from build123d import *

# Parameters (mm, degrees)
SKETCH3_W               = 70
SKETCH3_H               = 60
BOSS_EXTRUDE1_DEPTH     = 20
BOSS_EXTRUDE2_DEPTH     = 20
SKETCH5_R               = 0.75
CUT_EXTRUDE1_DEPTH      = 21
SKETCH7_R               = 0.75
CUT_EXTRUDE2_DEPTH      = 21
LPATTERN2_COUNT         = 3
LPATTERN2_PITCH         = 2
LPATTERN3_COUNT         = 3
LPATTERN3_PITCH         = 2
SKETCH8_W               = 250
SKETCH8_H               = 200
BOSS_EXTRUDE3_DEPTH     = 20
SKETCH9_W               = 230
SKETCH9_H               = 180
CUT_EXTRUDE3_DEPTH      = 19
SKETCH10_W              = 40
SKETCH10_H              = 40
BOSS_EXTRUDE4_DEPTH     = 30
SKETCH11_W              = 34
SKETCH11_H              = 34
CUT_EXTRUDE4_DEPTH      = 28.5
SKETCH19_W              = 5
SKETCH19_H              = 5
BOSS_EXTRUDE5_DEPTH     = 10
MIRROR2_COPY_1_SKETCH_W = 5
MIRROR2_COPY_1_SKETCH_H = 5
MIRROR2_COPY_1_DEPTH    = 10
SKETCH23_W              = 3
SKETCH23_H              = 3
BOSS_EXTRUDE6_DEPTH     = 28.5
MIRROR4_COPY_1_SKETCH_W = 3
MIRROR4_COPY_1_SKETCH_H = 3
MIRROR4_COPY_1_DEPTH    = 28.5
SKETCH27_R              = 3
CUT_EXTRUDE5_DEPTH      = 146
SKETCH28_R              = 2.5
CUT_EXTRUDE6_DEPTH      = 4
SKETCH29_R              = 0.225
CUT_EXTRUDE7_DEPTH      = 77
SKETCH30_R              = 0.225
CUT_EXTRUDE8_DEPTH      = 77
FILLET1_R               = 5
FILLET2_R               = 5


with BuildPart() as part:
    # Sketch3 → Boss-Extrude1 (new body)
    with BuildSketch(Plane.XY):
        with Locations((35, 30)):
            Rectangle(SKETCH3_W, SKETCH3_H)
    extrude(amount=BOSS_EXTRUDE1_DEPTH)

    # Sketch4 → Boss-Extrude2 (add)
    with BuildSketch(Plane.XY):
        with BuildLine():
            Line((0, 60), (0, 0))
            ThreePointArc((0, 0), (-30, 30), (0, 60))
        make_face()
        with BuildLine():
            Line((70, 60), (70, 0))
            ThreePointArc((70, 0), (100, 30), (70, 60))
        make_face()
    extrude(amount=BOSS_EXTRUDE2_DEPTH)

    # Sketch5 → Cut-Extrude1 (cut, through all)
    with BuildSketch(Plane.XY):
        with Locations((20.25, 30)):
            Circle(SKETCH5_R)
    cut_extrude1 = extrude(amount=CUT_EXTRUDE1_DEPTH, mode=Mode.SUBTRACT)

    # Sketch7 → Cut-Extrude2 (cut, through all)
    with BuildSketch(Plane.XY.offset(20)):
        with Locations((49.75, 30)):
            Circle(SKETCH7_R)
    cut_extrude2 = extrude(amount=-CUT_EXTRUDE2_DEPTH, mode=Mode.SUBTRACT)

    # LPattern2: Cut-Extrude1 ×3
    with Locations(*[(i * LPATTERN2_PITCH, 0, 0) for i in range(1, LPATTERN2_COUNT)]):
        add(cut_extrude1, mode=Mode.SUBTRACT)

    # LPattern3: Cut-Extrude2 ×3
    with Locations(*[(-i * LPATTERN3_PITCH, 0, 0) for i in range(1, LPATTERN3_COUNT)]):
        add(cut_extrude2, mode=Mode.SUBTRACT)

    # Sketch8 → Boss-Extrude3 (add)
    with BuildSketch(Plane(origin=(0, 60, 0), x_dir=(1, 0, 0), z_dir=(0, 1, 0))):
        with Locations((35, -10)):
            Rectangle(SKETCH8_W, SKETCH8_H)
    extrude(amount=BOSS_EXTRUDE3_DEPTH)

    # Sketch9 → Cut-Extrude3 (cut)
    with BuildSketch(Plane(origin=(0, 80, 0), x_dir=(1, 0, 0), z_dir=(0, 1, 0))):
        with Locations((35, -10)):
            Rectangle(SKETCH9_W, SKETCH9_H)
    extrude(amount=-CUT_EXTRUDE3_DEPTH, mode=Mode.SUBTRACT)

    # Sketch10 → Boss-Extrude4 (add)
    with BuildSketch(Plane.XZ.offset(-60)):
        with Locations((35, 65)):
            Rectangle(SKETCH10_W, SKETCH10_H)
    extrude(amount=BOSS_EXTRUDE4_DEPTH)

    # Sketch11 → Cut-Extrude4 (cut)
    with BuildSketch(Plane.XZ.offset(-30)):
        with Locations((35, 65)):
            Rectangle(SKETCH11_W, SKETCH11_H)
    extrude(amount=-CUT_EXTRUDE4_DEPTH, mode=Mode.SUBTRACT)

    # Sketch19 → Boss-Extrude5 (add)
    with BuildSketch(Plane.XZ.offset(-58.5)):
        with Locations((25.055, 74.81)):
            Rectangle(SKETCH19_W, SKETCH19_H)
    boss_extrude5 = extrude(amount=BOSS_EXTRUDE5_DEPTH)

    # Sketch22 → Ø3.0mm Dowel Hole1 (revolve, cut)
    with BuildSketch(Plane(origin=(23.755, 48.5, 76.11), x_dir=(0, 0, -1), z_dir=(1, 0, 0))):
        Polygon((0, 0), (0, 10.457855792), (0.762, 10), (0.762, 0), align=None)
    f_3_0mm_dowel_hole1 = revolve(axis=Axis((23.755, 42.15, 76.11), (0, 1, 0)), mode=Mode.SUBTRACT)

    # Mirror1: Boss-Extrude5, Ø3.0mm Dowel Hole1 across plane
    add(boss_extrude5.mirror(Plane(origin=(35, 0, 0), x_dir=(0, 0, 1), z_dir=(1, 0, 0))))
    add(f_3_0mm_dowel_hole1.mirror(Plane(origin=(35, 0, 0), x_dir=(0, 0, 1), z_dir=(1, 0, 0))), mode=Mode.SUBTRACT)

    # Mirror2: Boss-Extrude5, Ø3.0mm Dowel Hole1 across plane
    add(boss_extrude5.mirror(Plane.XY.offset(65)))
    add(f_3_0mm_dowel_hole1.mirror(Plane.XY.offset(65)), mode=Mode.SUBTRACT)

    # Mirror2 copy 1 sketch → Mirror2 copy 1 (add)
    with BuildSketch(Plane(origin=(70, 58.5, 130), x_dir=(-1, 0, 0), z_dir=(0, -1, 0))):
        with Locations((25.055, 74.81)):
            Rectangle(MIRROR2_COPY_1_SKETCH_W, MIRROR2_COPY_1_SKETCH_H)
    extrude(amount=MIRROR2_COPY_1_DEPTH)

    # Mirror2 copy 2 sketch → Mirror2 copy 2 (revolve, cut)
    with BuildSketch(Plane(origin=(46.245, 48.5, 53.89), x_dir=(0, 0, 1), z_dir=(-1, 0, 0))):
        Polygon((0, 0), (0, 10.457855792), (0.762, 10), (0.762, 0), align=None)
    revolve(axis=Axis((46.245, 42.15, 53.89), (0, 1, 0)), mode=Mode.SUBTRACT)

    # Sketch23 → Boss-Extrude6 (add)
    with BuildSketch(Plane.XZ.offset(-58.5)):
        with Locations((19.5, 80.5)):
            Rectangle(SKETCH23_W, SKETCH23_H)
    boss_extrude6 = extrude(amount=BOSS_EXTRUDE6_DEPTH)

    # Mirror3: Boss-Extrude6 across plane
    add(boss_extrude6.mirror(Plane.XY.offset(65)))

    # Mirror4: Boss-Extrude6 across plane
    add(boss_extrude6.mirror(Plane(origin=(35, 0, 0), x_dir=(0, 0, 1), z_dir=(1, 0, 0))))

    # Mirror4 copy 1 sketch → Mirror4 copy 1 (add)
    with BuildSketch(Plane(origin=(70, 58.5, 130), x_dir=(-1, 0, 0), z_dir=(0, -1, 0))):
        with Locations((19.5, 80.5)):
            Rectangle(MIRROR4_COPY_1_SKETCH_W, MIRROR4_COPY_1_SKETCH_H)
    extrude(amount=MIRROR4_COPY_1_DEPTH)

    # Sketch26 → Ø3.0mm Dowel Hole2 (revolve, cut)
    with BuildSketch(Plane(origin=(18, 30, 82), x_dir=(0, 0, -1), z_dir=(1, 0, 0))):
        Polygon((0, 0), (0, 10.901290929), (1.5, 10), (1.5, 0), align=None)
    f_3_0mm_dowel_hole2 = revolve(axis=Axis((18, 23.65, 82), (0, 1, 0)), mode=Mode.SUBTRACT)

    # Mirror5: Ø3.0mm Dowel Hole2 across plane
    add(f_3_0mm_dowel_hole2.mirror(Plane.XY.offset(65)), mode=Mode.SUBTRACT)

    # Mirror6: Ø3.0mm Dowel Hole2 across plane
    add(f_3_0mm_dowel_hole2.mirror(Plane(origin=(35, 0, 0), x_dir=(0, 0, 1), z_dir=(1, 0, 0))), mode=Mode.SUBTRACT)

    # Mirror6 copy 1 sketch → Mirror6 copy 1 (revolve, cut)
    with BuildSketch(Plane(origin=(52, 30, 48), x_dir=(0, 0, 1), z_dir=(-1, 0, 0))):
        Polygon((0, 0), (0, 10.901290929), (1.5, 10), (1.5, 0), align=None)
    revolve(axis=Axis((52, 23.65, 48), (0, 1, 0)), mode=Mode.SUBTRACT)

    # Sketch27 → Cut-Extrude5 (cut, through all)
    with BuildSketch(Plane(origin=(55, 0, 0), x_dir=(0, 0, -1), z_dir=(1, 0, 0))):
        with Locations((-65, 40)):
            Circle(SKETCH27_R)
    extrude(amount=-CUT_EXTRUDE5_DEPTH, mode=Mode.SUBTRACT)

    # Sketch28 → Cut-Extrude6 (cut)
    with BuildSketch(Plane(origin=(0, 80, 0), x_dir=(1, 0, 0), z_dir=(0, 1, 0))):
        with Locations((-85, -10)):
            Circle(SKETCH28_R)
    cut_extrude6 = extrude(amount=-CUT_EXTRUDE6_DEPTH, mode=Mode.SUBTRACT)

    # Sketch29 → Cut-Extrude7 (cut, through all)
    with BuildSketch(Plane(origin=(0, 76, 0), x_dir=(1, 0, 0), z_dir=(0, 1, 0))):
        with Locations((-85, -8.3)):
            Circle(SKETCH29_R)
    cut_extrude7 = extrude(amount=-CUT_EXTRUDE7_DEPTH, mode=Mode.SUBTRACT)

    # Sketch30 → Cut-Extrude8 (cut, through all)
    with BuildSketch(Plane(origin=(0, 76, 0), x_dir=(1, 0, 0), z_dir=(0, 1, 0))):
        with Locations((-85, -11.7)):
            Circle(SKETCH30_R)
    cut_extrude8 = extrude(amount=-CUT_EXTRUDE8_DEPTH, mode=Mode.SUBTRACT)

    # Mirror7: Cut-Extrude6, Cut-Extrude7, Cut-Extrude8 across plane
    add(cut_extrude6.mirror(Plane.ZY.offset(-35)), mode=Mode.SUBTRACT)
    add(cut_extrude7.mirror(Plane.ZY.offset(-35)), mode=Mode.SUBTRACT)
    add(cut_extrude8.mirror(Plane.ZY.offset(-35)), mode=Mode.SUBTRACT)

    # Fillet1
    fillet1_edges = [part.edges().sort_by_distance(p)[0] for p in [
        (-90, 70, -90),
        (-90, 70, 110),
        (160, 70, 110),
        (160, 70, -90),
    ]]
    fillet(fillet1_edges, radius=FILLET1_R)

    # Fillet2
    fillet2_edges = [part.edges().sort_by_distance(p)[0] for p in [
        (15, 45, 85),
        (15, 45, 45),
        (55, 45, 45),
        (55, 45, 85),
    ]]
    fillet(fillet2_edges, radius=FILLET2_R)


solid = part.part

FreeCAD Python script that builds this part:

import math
import FreeCAD as App
import Part
import Sketcher

V = App.Vector
Q = App.Units.Quantity


def edges_at(feature, points):
    """Names of the edges that pass closest to the given points."""
    edges = feature.Shape.Edges
    near = lambda p: min(range(len(edges)), key=lambda i: edges[i].distToShape(Part.Vertex(*p))[0])
    return sorted({f"Edge{near(p) + 1}" for p in points})

doc = App.newDocument("Part")
body = doc.addObject("PartDesign::Body", "Body")

# Sketch on XY plane
sketch1 = body.newObject("Sketcher::SketchObject", "Sketch")
sketch1.AttachmentSupport = (doc.getObject("XY_Plane"), [""])
sketch1.MapMode = "FlatFace"
sketch1.addGeometry(Part.LineSegment(V(0, 60, 0), V(0, 0, 0)), False)
sketch1.addGeometry(Part.LineSegment(V(0, 0, 0), V(70, 0, 0)), False)
sketch1.addGeometry(Part.LineSegment(V(70, 0, 0), V(70, 60, 0)), False)
sketch1.addGeometry(Part.LineSegment(V(70, 60, 0), V(0, 60, 0)), False)
sketch1.addConstraint(Sketcher.Constraint("Coincident", 0, 2, 1, 1))
sketch1.addConstraint(Sketcher.Constraint("Coincident", 1, 2, 2, 1))
sketch1.addConstraint(Sketcher.Constraint("Coincident", 2, 2, 3, 1))
sketch1.addConstraint(Sketcher.Constraint("Coincident", 3, 2, 0, 1))
sketch1.addConstraint(Sketcher.Constraint("Vertical", 0))
sketch1.addConstraint(Sketcher.Constraint("Horizontal", 1))
sketch1.addConstraint(Sketcher.Constraint("Vertical", 2))
sketch1.addConstraint(Sketcher.Constraint("Horizontal", 3))
sketch1.addConstraint(Sketcher.Constraint("Coincident", 0, 2, -1, 1))
sketch1.addConstraint(Sketcher.Constraint("DistanceX", 1, 1, 1, 2, Q("70 mm")))
sketch1.addConstraint(Sketcher.Constraint("DistanceY", 0, 2, 0, 1, Q("60 mm")))
pad1 = body.newObject("PartDesign::Pad", "Pad")
pad1.Profile = sketch1
pad1.Length = 20

# Sketch on XY plane
sketch2 = body.newObject("Sketcher::SketchObject", "Sketch001")
sketch2.AttachmentSupport = (doc.getObject("XY_Plane"), [""])
sketch2.MapMode = "FlatFace"
sketch2.addGeometry(Part.LineSegment(V(0, 0, 0), V(0, 60, 0)), False)
sketch2.addGeometry(Part.ArcOfCircle(Part.Circle(V(0, 30, 0), V(0, 0, 1), 30), math.radians(90), math.radians(270)), False)
sketch2.addGeometry(Part.LineSegment(V(70, 60, 0), V(70, 0, 0)), False)
sketch2.addGeometry(Part.ArcOfCircle(Part.Circle(V(70, 30, 0), V(0, 0, 1), 30), math.radians(-90), math.radians(90)), False)
sketch2.addConstraint(Sketcher.Constraint("Coincident", 0, 1, 1, 2))
sketch2.addConstraint(Sketcher.Constraint("Coincident", 1, 1, 0, 2))
sketch2.addConstraint(Sketcher.Constraint("Coincident", 2, 1, 3, 2))
sketch2.addConstraint(Sketcher.Constraint("Coincident", 3, 1, 2, 2))
sketch2.addConstraint(Sketcher.Constraint("Vertical", 0))
sketch2.addConstraint(Sketcher.Constraint("Vertical", 2))
sketch2.addConstraint(Sketcher.Constraint("Coincident", 0, 1, -1, 1))
sketch2.addConstraint(Sketcher.Constraint("Equal", 1, 3))
sketch2.addConstraint(Sketcher.Constraint("PointOnObject", 1, 3, -2))
sketch2.addConstraint(Sketcher.Constraint("PointOnObject", 3, 1, -1))
sketch2.addConstraint(Sketcher.Constraint("Vertical", 3, 3, 2, 1))
sketch2.addConstraint(Sketcher.Constraint("Radius", 1, Q("30 mm")))
sketch2.addConstraint(Sketcher.Constraint("DistanceX", -1, 1, 3, 3, Q("70 mm")))
pad2 = body.newObject("PartDesign::Pad", "Pad001")
pad2.Profile = sketch2
pad2.Length = 20

# Sketch on XY plane
sketch3 = body.newObject("Sketcher::SketchObject", "Sketch002")
sketch3.AttachmentSupport = (doc.getObject("XY_Plane"), [""])
sketch3.MapMode = "FlatFace"
sketch3.addGeometry(Part.Circle(V(20.2, 30, 0), V(0, 0, 1), 0.8), False)
sketch3.addConstraint(Sketcher.Constraint("Diameter", 0, Q("1.5 mm")))
sketch3.addConstraint(Sketcher.Constraint("DistanceY", -1, 1, 0, 3, Q("30 mm")))
sketch3.addConstraint(Sketcher.Constraint("DistanceX", -1, 1, 0, 3, Q("20.25 mm")))
pocket1 = body.newObject("PartDesign::Pocket", "Pocket")
pocket1.Profile = sketch3
pocket1.Type = "ThroughAll"
pocket1.Reversed = True

# Sketch on XY plane
sketch4 = body.newObject("Sketcher::SketchObject", "Sketch003")
sketch4.AttachmentSupport = (doc.getObject("XY_Plane"), [""])
sketch4.MapMode = "FlatFace"
sketch4.AttachmentOffset = App.Placement(V(0, 0, 20), App.Rotation())
sketch4.addGeometry(Part.Circle(V(49.8, 30, 0), V(0, 0, 1), 0.8), False)
sketch4.addConstraint(Sketcher.Constraint("Diameter", 0, Q("1.5 mm")))
sketch4.addConstraint(Sketcher.Constraint("DistanceY", -1, 1, 0, 3, Q("30 mm")))
sketch4.addConstraint(Sketcher.Constraint("DistanceX", -1, 1, 0, 3, Q("49.75 mm")))
pocket2 = body.newObject("PartDesign::Pocket", "Pocket001")
pocket2.Profile = sketch4
pocket2.Type = "ThroughAll"
doc.recompute()

linearpattern = body.newObject("PartDesign::LinearPattern", "LinearPattern")
linearpattern.Originals = [pocket1]
linearpattern.Direction = (doc.getObject("X_Axis"), [""])
linearpattern.Mode = "offset"
linearpattern.Offset = 2
linearpattern.Occurrences = 3
body.Tip = linearpattern
doc.recompute()

linearpattern2 = body.newObject("PartDesign::LinearPattern", "LinearPattern001")
linearpattern2.Originals = [pocket2]
linearpattern2.Direction = (doc.getObject("X_Axis"), [""])
linearpattern2.Mode = "offset"
linearpattern2.Offset = 2
linearpattern2.Occurrences = 3
linearpattern2.Reversed = True
body.Tip = linearpattern2

# Sketch on XZ plane
sketch5 = body.newObject("Sketcher::SketchObject", "Sketch004")
sketch5.AttachmentSupport = (doc.getObject("XZ_Plane"), [""])
sketch5.MapMode = "FlatFace"
sketch5.AttachmentOffset = App.Placement(V(0, 0, -60), App.Rotation())
sketch5.addGeometry(Part.LineSegment(V(-90, -90, 0), V(-90, 110, 0)), False)
sketch5.addGeometry(Part.LineSegment(V(-90, 110, 0), V(160, 110, 0)), False)
sketch5.addGeometry(Part.LineSegment(V(160, 110, 0), V(160, -90, 0)), False)
sketch5.addGeometry(Part.LineSegment(V(160, -90, 0), V(-90, -90, 0)), False)
sketch5.addConstraint(Sketcher.Constraint("Coincident", 0, 2, 1, 1))
sketch5.addConstraint(Sketcher.Constraint("Coincident", 1, 2, 2, 1))
sketch5.addConstraint(Sketcher.Constraint("Coincident", 2, 2, 3, 1))
sketch5.addConstraint(Sketcher.Constraint("Coincident", 3, 2, 0, 1))
sketch5.addConstraint(Sketcher.Constraint("Vertical", 0))
sketch5.addConstraint(Sketcher.Constraint("Horizontal", 1))
sketch5.addConstraint(Sketcher.Constraint("Vertical", 2))
sketch5.addConstraint(Sketcher.Constraint("Horizontal", 3))
sketch5.addConstraint(Sketcher.Constraint("DistanceX", 1, 1, 1, 2, Q("250 mm")))
sketch5.addConstraint(Sketcher.Constraint("DistanceY", 0, 1, 0, 2, Q("200 mm")))
sketch5.addConstraint(Sketcher.Constraint("DistanceX", 0, 2, -1, 1, Q("90 mm")))
sketch5.addConstraint(Sketcher.Constraint("DistanceY", -1, 1, 0, 2, Q("110 mm")))
pad3 = body.newObject("PartDesign::Pad", "Pad002")
pad3.Profile = sketch5
pad3.Length = 20
pad3.Reversed = True

# Sketch on XZ plane
sketch6 = body.newObject("Sketcher::SketchObject", "Sketch005")
sketch6.AttachmentSupport = (doc.getObject("XZ_Plane"), [""])
sketch6.MapMode = "FlatFace"
sketch6.AttachmentOffset = App.Placement(V(0, 0, -80), App.Rotation())
sketch6.addGeometry(Part.LineSegment(V(-80, -80, 0), V(-80, 100, 0)), False)
sketch6.addGeometry(Part.LineSegment(V(-80, 100, 0), V(150, 100, 0)), False)
sketch6.addGeometry(Part.LineSegment(V(150, 100, 0), V(150, -80, 0)), False)
sketch6.addGeometry(Part.LineSegment(V(150, -80, 0), V(-80, -80, 0)), False)
sketch6.addConstraint(Sketcher.Constraint("Coincident", 0, 2, 1, 1))
sketch6.addConstraint(Sketcher.Constraint("Coincident", 1, 2, 2, 1))
sketch6.addConstraint(Sketcher.Constraint("Coincident", 2, 2, 3, 1))
sketch6.addConstraint(Sketcher.Constraint("Coincident", 3, 2, 0, 1))
sketch6.addConstraint(Sketcher.Constraint("Vertical", 0))
sketch6.addConstraint(Sketcher.Constraint("Horizontal", 1))
sketch6.addConstraint(Sketcher.Constraint("Vertical", 2))
sketch6.addConstraint(Sketcher.Constraint("Horizontal", 3))
sketch6.addConstraint(Sketcher.Constraint("DistanceX", 1, 1, 1, 2, Q("230 mm")))
sketch6.addConstraint(Sketcher.Constraint("DistanceY", 0, 1, 0, 2, Q("180 mm")))
sketch6.addConstraint(Sketcher.Constraint("DistanceX", 0, 2, -1, 1, Q("80 mm")))
sketch6.addConstraint(Sketcher.Constraint("DistanceY", -1, 1, 0, 2, Q("100 mm")))
pocket3 = body.newObject("PartDesign::Pocket", "Pocket002")
pocket3.Profile = sketch6
pocket3.Length = 19
pocket3.Reversed = True

# Sketch on XZ plane
sketch7 = body.newObject("Sketcher::SketchObject", "Sketch006")
sketch7.AttachmentSupport = (doc.getObject("XZ_Plane"), [""])
sketch7.MapMode = "FlatFace"
sketch7.AttachmentOffset = App.Placement(V(0, 0, -60), App.Rotation())
sketch7.addGeometry(Part.LineSegment(V(15, 85, 0), V(15, 45, 0)), False)
sketch7.addGeometry(Part.LineSegment(V(15, 45, 0), V(55, 45, 0)), False)
sketch7.addGeometry(Part.LineSegment(V(55, 45, 0), V(55, 85, 0)), False)
sketch7.addGeometry(Part.LineSegment(V(55, 85, 0), V(15, 85, 0)), False)
sketch7.addConstraint(Sketcher.Constraint("Coincident", 0, 2, 1, 1))
sketch7.addConstraint(Sketcher.Constraint("Coincident", 1, 2, 2, 1))
sketch7.addConstraint(Sketcher.Constraint("Coincident", 2, 2, 3, 1))
sketch7.addConstraint(Sketcher.Constraint("Coincident", 3, 2, 0, 1))
sketch7.addConstraint(Sketcher.Constraint("Vertical", 0))
sketch7.addConstraint(Sketcher.Constraint("Horizontal", 1))
sketch7.addConstraint(Sketcher.Constraint("Vertical", 2))
sketch7.addConstraint(Sketcher.Constraint("Horizontal", 3))
sketch7.addConstraint(Sketcher.Constraint("Equal", 3, 0))
sketch7.addConstraint(Sketcher.Constraint("DistanceX", 1, 1, 1, 2, Q("40 mm")))
sketch7.addConstraint(Sketcher.Constraint("DistanceX", -1, 1, 0, 2, Q("15 mm")))
sketch7.addConstraint(Sketcher.Constraint("DistanceY", -1, 1, 0, 2, Q("45 mm")))
pad4 = body.newObject("PartDesign::Pad", "Pad003")
pad4.Profile = sketch7
pad4.Length = 30

# Sketch on XZ plane
sketch8 = body.newObject("Sketcher::SketchObject", "Sketch007")
sketch8.AttachmentSupport = (doc.getObject("XZ_Plane"), [""])
sketch8.MapMode = "FlatFace"
sketch8.AttachmentOffset = App.Placement(V(0, 0, -30), App.Rotation())
sketch8.addGeometry(Part.LineSegment(V(18, 82, 0), V(18, 48, 0)), False)
sketch8.addGeometry(Part.LineSegment(V(18, 48, 0), V(52, 48, 0)), False)
sketch8.addGeometry(Part.LineSegment(V(52, 48, 0), V(52, 82, 0)), False)
sketch8.addGeometry(Part.LineSegment(V(52, 82, 0), V(18, 82, 0)), False)
sketch8.addConstraint(Sketcher.Constraint("Coincident", 0, 2, 1, 1))
sketch8.addConstraint(Sketcher.Constraint("Coincident", 1, 2, 2, 1))
sketch8.addConstraint(Sketcher.Constraint("Coincident", 2, 2, 3, 1))
sketch8.addConstraint(Sketcher.Constraint("Coincident", 3, 2, 0, 1))
sketch8.addConstraint(Sketcher.Constraint("Vertical", 0))
sketch8.addConstraint(Sketcher.Constraint("Horizontal", 1))
sketch8.addConstraint(Sketcher.Constraint("Vertical", 2))
sketch8.addConstraint(Sketcher.Constraint("Horizontal", 3))
sketch8.addConstraint(Sketcher.Constraint("Equal", 3, 0))
sketch8.addConstraint(Sketcher.Constraint("DistanceX", 1, 1, 1, 2, Q("34 mm")))
sketch8.addConstraint(Sketcher.Constraint("DistanceX", -1, 1, 0, 2, Q("18 mm")))
sketch8.addConstraint(Sketcher.Constraint("DistanceY", -1, 1, 0, 2, Q("48 mm")))
pocket4 = body.newObject("PartDesign::Pocket", "Pocket003")
pocket4.Profile = sketch8
pocket4.Length = 28.5

# Sketch on XZ plane
sketch9 = body.newObject("Sketcher::SketchObject", "Sketch008")
sketch9.AttachmentSupport = (doc.getObject("XZ_Plane"), [""])
sketch9.MapMode = "FlatFace"
sketch9.AttachmentOffset = App.Placement(V(0, 0, -58.5), App.Rotation())
sketch9.addGeometry(Part.LineSegment(V(23, 77, 0), V(23, 72, 0)), False)
sketch9.addGeometry(Part.LineSegment(V(23, 72, 0), V(28, 72, 0)), False)
sketch9.addGeometry(Part.LineSegment(V(28, 72, 0), V(28, 77, 0)), False)
sketch9.addGeometry(Part.LineSegment(V(28, 77, 0), V(23, 77, 0)), False)
sketch9.addConstraint(Sketcher.Constraint("Coincident", 0, 2, 1, 1))
sketch9.addConstraint(Sketcher.Constraint("Coincident", 1, 2, 2, 1))
sketch9.addConstraint(Sketcher.Constraint("Coincident", 2, 2, 3, 1))
sketch9.addConstraint(Sketcher.Constraint("Coincident", 3, 2, 0, 1))
sketch9.addConstraint(Sketcher.Constraint("Vertical", 0))
sketch9.addConstraint(Sketcher.Constraint("Horizontal", 1))
sketch9.addConstraint(Sketcher.Constraint("Vertical", 2))
sketch9.addConstraint(Sketcher.Constraint("Horizontal", 3))
sketch9.addConstraint(Sketcher.Constraint("Equal", 3, 0))
sketch9.addConstraint(Sketcher.Constraint("DistanceX", 1, 1, 1, 2, Q("5 mm")))
sketch9.addConstraint(Sketcher.Constraint("DistanceY", -1, 1, 0, 2, Q("72.31 mm")))
sketch9.addConstraint(Sketcher.Constraint("DistanceX", -1, 1, 0, 2, Q("22.555 mm")))
pad5 = body.newObject("PartDesign::Pad", "Pad004")
pad5.Profile = sketch9
pad5.Length = 10

# Sketch on YZ plane
sketch10 = body.newObject("Sketcher::SketchObject", "Sketch009")
sketch10.AttachmentSupport = (doc.getObject("YZ_Plane"), [""])
sketch10.MapMode = "FlatFace"
sketch10.AttachmentOffset = App.Placement(V(0, 0, 23.755), App.Rotation())
sketch10.addGeometry(Part.LineSegment(V(59, 76.1, 0), V(48.5, 76.1, 0)), False)
sketch10.addGeometry(Part.LineSegment(V(48.5, 76.1, 0), V(48.5, 75.3, 0)), False)
sketch10.addGeometry(Part.LineSegment(V(48.5, 75.3, 0), V(58.5, 75.3, 0)), False)
sketch10.addGeometry(Part.LineSegment(V(58.5, 75.3, 0), V(59, 76.1, 0)), False)
sketch10.addGeometry(Part.LineSegment(V(48.5, 76.1, 0), V(59, 76.1, 0)), True)  # axis
sketch10.addConstraint(Sketcher.Constraint("Coincident", 0, 2, 1, 1))
sketch10.addConstraint(Sketcher.Constraint("Coincident", 1, 2, 2, 1))
sketch10.addConstraint(Sketcher.Constraint("Coincident", 2, 2, 3, 1))
sketch10.addConstraint(Sketcher.Constraint("Coincident", 3, 2, 0, 1))
sketch10.addConstraint(Sketcher.Constraint("Horizontal", 0))
sketch10.addConstraint(Sketcher.Constraint("Vertical", 1))
sketch10.addConstraint(Sketcher.Constraint("Horizontal", 2))
sketch10.addConstraint(Sketcher.Constraint("Horizontal", 4))
sketch10.addConstraint(Sketcher.Constraint("Coincident", 4, 1, 0, 2))
sketch10.addConstraint(Sketcher.Constraint("Equal", 0, 4))
sketch10.addConstraint(Sketcher.Constraint("DistanceX", 2, 1, 2, 2, Q("10 mm")))
sketch10.addConstraint(Sketcher.Constraint("Angle", 3, Q("59 deg")))
sketch10.addConstraint(Sketcher.Constraint("DistanceX", -1, 1, 0, 2, Q("48.5 mm")))
sketch10.addConstraint(Sketcher.Constraint("DistanceY", 1, 2, 1, 1, Q("0.762 mm")))
sketch10.addConstraint(Sketcher.Constraint("DistanceY", -1, 1, 0, 2, Q("76.11 mm")))
groove = body.newObject("PartDesign::Groove", "Groove")
groove.Profile = sketch10
groove.ReferenceAxis = (sketch10, ["Axis0"])
groove.Angle = 360
doc.recompute()

datumplane = body.newObject("PartDesign::Plane", "DatumPlane")
datumplane.AttachmentSupport = (doc.getObject("YZ_Plane"), [""])
datumplane.MapMode = "FlatFace"
datumplane.AttachmentOffset = App.Placement(V(0, 0, 35), App.Rotation())
mirrored = body.newObject("PartDesign::Mirrored", "Mirrored")
mirrored.Originals = [pad5, groove]
mirrored.MirrorPlane = (datumplane, [""])
body.Tip = mirrored
doc.recompute()

datumplane2 = body.newObject("PartDesign::Plane", "DatumPlane001")
datumplane2.AttachmentSupport = (doc.getObject("XY_Plane"), [""])
datumplane2.MapMode = "FlatFace"
datumplane2.AttachmentOffset = App.Placement(V(0, 0, 65), App.Rotation())
mirrored2 = body.newObject("PartDesign::Mirrored", "Mirrored001")
mirrored2.Originals = [pad5, groove]
mirrored2.MirrorPlane = (datumplane2, [""])
body.Tip = mirrored2

# Sketch on XZ plane
sketch11 = body.newObject("Sketcher::SketchObject", "Sketch010")
sketch11.AttachmentSupport = (doc.getObject("XZ_Plane"), [""])
sketch11.MapMode = "FlatFace"
sketch11.AttachmentOffset = App.Placement(V(0, 0, -58.5), App.Rotation())
sketch11.addGeometry(Part.LineSegment(V(47, 53, 0), V(47, 58, 0)), False)
sketch11.addGeometry(Part.LineSegment(V(47, 58, 0), V(42, 58, 0)), False)
sketch11.addGeometry(Part.LineSegment(V(42, 58, 0), V(42, 53, 0)), False)
sketch11.addGeometry(Part.LineSegment(V(42, 53, 0), V(47, 53, 0)), False)
sketch11.addConstraint(Sketcher.Constraint("Coincident", 0, 2, 1, 1))
sketch11.addConstraint(Sketcher.Constraint("Coincident", 1, 2, 2, 1))
sketch11.addConstraint(Sketcher.Constraint("Coincident", 2, 2, 3, 1))
sketch11.addConstraint(Sketcher.Constraint("Coincident", 3, 2, 0, 1))
sketch11.addConstraint(Sketcher.Constraint("Vertical", 0))
sketch11.addConstraint(Sketcher.Constraint("Horizontal", 1))
sketch11.addConstraint(Sketcher.Constraint("Vertical", 2))
sketch11.addConstraint(Sketcher.Constraint("Horizontal", 3))
sketch11.addConstraint(Sketcher.Constraint("Equal", 3, 0))
sketch11.addConstraint(Sketcher.Constraint("DistanceX", 1, 2, 1, 1, Q("5 mm")))
sketch11.addConstraint(Sketcher.Constraint("DistanceY", -1, 1, 0, 2, Q("57.69 mm")))
sketch11.addConstraint(Sketcher.Constraint("DistanceX", -1, 1, 0, 2, Q("47.445 mm")))
pad6 = body.newObject("PartDesign::Pad", "Pad005")
pad6.Profile = sketch11
pad6.Length = 10

# Sketch on YZ plane
sketch12 = body.newObject("Sketcher::SketchObject", "Sketch011")
sketch12.AttachmentSupport = (doc.getObject("YZ_Plane"), [""])
sketch12.MapMode = "FlatFace"
sketch12.AttachmentOffset = App.Placement(V(0, 0, 46.245), App.Rotation())
sketch12.addGeometry(Part.LineSegment(V(59, 53.9, 0), V(48.5, 53.9, 0)), False)
sketch12.addGeometry(Part.LineSegment(V(48.5, 53.9, 0), V(48.5, 54.7, 0)), False)
sketch12.addGeometry(Part.LineSegment(V(48.5, 54.7, 0), V(58.5, 54.7, 0)), False)
sketch12.addGeometry(Part.LineSegment(V(58.5, 54.7, 0), V(59, 53.9, 0)), False)
sketch12.addGeometry(Part.LineSegment(V(48.5, 53.9, 0), V(59, 53.9, 0)), True)  # axis
sketch12.addConstraint(Sketcher.Constraint("Coincident", 0, 2, 1, 1))
sketch12.addConstraint(Sketcher.Constraint("Coincident", 1, 2, 2, 1))
sketch12.addConstraint(Sketcher.Constraint("Coincident", 2, 2, 3, 1))
sketch12.addConstraint(Sketcher.Constraint("Coincident", 3, 2, 0, 1))
sketch12.addConstraint(Sketcher.Constraint("Horizontal", 0))
sketch12.addConstraint(Sketcher.Constraint("Vertical", 1))
sketch12.addConstraint(Sketcher.Constraint("Horizontal", 2))
sketch12.addConstraint(Sketcher.Constraint("Horizontal", 4))
sketch12.addConstraint(Sketcher.Constraint("Coincident", 4, 1, 0, 2))
sketch12.addConstraint(Sketcher.Constraint("Equal", 0, 4))
sketch12.addConstraint(Sketcher.Constraint("DistanceX", 2, 1, 2, 2, Q("10 mm")))
sketch12.addConstraint(Sketcher.Constraint("Angle", 3, Q("-59 deg")))
sketch12.addConstraint(Sketcher.Constraint("DistanceX", -1, 1, 0, 2, Q("48.5 mm")))
sketch12.addConstraint(Sketcher.Constraint("DistanceY", 1, 1, 1, 2, Q("0.762 mm")))
sketch12.addConstraint(Sketcher.Constraint("DistanceY", -1, 1, 0, 2, Q("53.89 mm")))
groove2 = body.newObject("PartDesign::Groove", "Groove001")
groove2.Profile = sketch12
groove2.ReferenceAxis = (sketch12, ["Axis0"])
groove2.Angle = 360

# Sketch on XZ plane
sketch13 = body.newObject("Sketcher::SketchObject", "Sketch012")
sketch13.AttachmentSupport = (doc.getObject("XZ_Plane"), [""])
sketch13.MapMode = "FlatFace"
sketch13.AttachmentOffset = App.Placement(V(0, 0, -58.5), App.Rotation())
sketch13.addGeometry(Part.LineSegment(V(18, 82, 0), V(18, 79, 0)), False)
sketch13.addGeometry(Part.LineSegment(V(18, 79, 0), V(21, 79, 0)), False)
sketch13.addGeometry(Part.LineSegment(V(21, 79, 0), V(21, 82, 0)), False)
sketch13.addGeometry(Part.LineSegment(V(21, 82, 0), V(18, 82, 0)), False)
sketch13.addConstraint(Sketcher.Constraint("Coincident", 0, 2, 1, 1))
sketch13.addConstraint(Sketcher.Constraint("Coincident", 1, 2, 2, 1))
sketch13.addConstraint(Sketcher.Constraint("Coincident", 2, 2, 3, 1))
sketch13.addConstraint(Sketcher.Constraint("Coincident", 3, 2, 0, 1))
sketch13.addConstraint(Sketcher.Constraint("Vertical", 0))
sketch13.addConstraint(Sketcher.Constraint("Horizontal", 1))
sketch13.addConstraint(Sketcher.Constraint("Vertical", 2))
sketch13.addConstraint(Sketcher.Constraint("Horizontal", 3))
sketch13.addConstraint(Sketcher.Constraint("Equal", 3, 0))
sketch13.addConstraint(Sketcher.Constraint("DistanceX", 1, 1, 1, 2, Q("3 mm")))
sketch13.addConstraint(Sketcher.Constraint("DistanceX", -1, 1, 0, 2, Q("18 mm")))
sketch13.addConstraint(Sketcher.Constraint("DistanceY", -1, 1, 0, 2, Q("79 mm")))
pad7 = body.newObject("PartDesign::Pad", "Pad006")
pad7.Profile = sketch13
pad7.Length = 28.5
doc.recompute()

datumplane3 = body.newObject("PartDesign::Plane", "DatumPlane002")
datumplane3.AttachmentSupport = (doc.getObject("XY_Plane"), [""])
datumplane3.MapMode = "FlatFace"
datumplane3.AttachmentOffset = App.Placement(V(0, 0, 65), App.Rotation())
mirrored3 = body.newObject("PartDesign::Mirrored", "Mirrored002")
mirrored3.Originals = [pad7]
mirrored3.MirrorPlane = (datumplane3, [""])
body.Tip = mirrored3
doc.recompute()

datumplane4 = body.newObject("PartDesign::Plane", "DatumPlane003")
datumplane4.AttachmentSupport = (doc.getObject("YZ_Plane"), [""])
datumplane4.MapMode = "FlatFace"
datumplane4.AttachmentOffset = App.Placement(V(0, 0, 35), App.Rotation())
mirrored4 = body.newObject("PartDesign::Mirrored", "Mirrored003")
mirrored4.Originals = [pad7]
mirrored4.MirrorPlane = (datumplane4, [""])
body.Tip = mirrored4

# Sketch on XZ plane
sketch14 = body.newObject("Sketcher::SketchObject", "Sketch013")
sketch14.AttachmentSupport = (doc.getObject("XZ_Plane"), [""])
sketch14.MapMode = "FlatFace"
sketch14.AttachmentOffset = App.Placement(V(0, 0, -58.5), App.Rotation())
sketch14.addGeometry(Part.LineSegment(V(52, 48, 0), V(52, 51, 0)), False)
sketch14.addGeometry(Part.LineSegment(V(52, 51, 0), V(49, 51, 0)), False)
sketch14.addGeometry(Part.LineSegment(V(49, 51, 0), V(49, 48, 0)), False)
sketch14.addGeometry(Part.LineSegment(V(49, 48, 0), V(52, 48, 0)), False)
sketch14.addConstraint(Sketcher.Constraint("Coincident", 0, 2, 1, 1))
sketch14.addConstraint(Sketcher.Constraint("Coincident", 1, 2, 2, 1))
sketch14.addConstraint(Sketcher.Constraint("Coincident", 2, 2, 3, 1))
sketch14.addConstraint(Sketcher.Constraint("Coincident", 3, 2, 0, 1))
sketch14.addConstraint(Sketcher.Constraint("Vertical", 0))
sketch14.addConstraint(Sketcher.Constraint("Horizontal", 1))
sketch14.addConstraint(Sketcher.Constraint("Vertical", 2))
sketch14.addConstraint(Sketcher.Constraint("Horizontal", 3))
sketch14.addConstraint(Sketcher.Constraint("Equal", 3, 0))
sketch14.addConstraint(Sketcher.Constraint("DistanceX", 1, 2, 1, 1, Q("3 mm")))
sketch14.addConstraint(Sketcher.Constraint("DistanceX", -1, 1, 0, 2, Q("52 mm")))
sketch14.addConstraint(Sketcher.Constraint("DistanceY", -1, 1, 0, 2, Q("51 mm")))
pad8 = body.newObject("PartDesign::Pad", "Pad007")
pad8.Profile = sketch14
pad8.Length = 28.5

# Sketch on YZ plane
sketch15 = body.newObject("Sketcher::SketchObject", "Sketch014")
sketch15.AttachmentSupport = (doc.getObject("YZ_Plane"), [""])
sketch15.MapMode = "FlatFace"
sketch15.AttachmentOffset = App.Placement(V(0, 0, 18), App.Rotation())
sketch15.addGeometry(Part.LineSegment(V(40.9, 82, 0), V(30, 82, 0)), False)
sketch15.addGeometry(Part.LineSegment(V(30, 82, 0), V(30, 80.5, 0)), False)
sketch15.addGeometry(Part.LineSegment(V(30, 80.5, 0), V(40, 80.5, 0)), False)
sketch15.addGeometry(Part.LineSegment(V(40, 80.5, 0), V(40.9, 82, 0)), False)
sketch15.addGeometry(Part.LineSegment(V(30, 82, 0), V(40.9, 82, 0)), True)  # axis
sketch15.addConstraint(Sketcher.Constraint("Coincident", 0, 2, 1, 1))
sketch15.addConstraint(Sketcher.Constraint("Coincident", 1, 2, 2, 1))
sketch15.addConstraint(Sketcher.Constraint("Coincident", 2, 2, 3, 1))
sketch15.addConstraint(Sketcher.Constraint("Coincident", 3, 2, 0, 1))
sketch15.addConstraint(Sketcher.Constraint("Horizontal", 0))
sketch15.addConstraint(Sketcher.Constraint("Vertical", 1))
sketch15.addConstraint(Sketcher.Constraint("Horizontal", 2))
sketch15.addConstraint(Sketcher.Constraint("Horizontal", 4))
sketch15.addConstraint(Sketcher.Constraint("Coincident", 4, 1, 0, 2))
sketch15.addConstraint(Sketcher.Constraint("Equal", 0, 4))
sketch15.addConstraint(Sketcher.Constraint("DistanceX", 2, 1, 2, 2, Q("10 mm")))
sketch15.addConstraint(Sketcher.Constraint("Angle", 3, Q("59 deg")))
sketch15.addConstraint(Sketcher.Constraint("DistanceY", 1, 2, 1, 1, Q("1.5 mm")))
sketch15.addConstraint(Sketcher.Constraint("DistanceX", -1, 1, 0, 2, Q("30 mm")))
sketch15.addConstraint(Sketcher.Constraint("DistanceY", -1, 1, 0, 2, Q("82 mm")))
groove3 = body.newObject("PartDesign::Groove", "Groove002")
groove3.Profile = sketch15
groove3.ReferenceAxis = (sketch15, ["Axis0"])
groove3.Angle = 360
doc.recompute()

datumplane5 = body.newObject("PartDesign::Plane", "DatumPlane004")
datumplane5.AttachmentSupport = (doc.getObject("XY_Plane"), [""])
datumplane5.MapMode = "FlatFace"
datumplane5.AttachmentOffset = App.Placement(V(0, 0, 65), App.Rotation())
mirrored5 = body.newObject("PartDesign::Mirrored", "Mirrored004")
mirrored5.Originals = [groove3]
mirrored5.MirrorPlane = (datumplane5, [""])
body.Tip = mirrored5
doc.recompute()

datumplane6 = body.newObject("PartDesign::Plane", "DatumPlane005")
datumplane6.AttachmentSupport = (doc.getObject("YZ_Plane"), [""])
datumplane6.MapMode = "FlatFace"
datumplane6.AttachmentOffset = App.Placement(V(0, 0, 35), App.Rotation())
mirrored6 = body.newObject("PartDesign::Mirrored", "Mirrored005")
mirrored6.Originals = [groove3]
mirrored6.MirrorPlane = (datumplane6, [""])
body.Tip = mirrored6

# Sketch on YZ plane
sketch16 = body.newObject("Sketcher::SketchObject", "Sketch015")
sketch16.AttachmentSupport = (doc.getObject("YZ_Plane"), [""])
sketch16.MapMode = "FlatFace"
sketch16.AttachmentOffset = App.Placement(V(0, 0, 52), App.Rotation())
sketch16.addGeometry(Part.LineSegment(V(40.9, 48, 0), V(30, 48, 0)), False)
sketch16.addGeometry(Part.LineSegment(V(30, 48, 0), V(30, 49.5, 0)), False)
sketch16.addGeometry(Part.LineSegment(V(30, 49.5, 0), V(40, 49.5, 0)), False)
sketch16.addGeometry(Part.LineSegment(V(40, 49.5, 0), V(40.9, 48, 0)), False)
sketch16.addGeometry(Part.LineSegment(V(30, 48, 0), V(40.9, 48, 0)), True)  # axis
sketch16.addConstraint(Sketcher.Constraint("Coincident", 0, 2, 1, 1))
sketch16.addConstraint(Sketcher.Constraint("Coincident", 1, 2, 2, 1))
sketch16.addConstraint(Sketcher.Constraint("Coincident", 2, 2, 3, 1))
sketch16.addConstraint(Sketcher.Constraint("Coincident", 3, 2, 0, 1))
sketch16.addConstraint(Sketcher.Constraint("Horizontal", 0))
sketch16.addConstraint(Sketcher.Constraint("Vertical", 1))
sketch16.addConstraint(Sketcher.Constraint("Horizontal", 2))
sketch16.addConstraint(Sketcher.Constraint("Horizontal", 4))
sketch16.addConstraint(Sketcher.Constraint("Coincident", 4, 1, 0, 2))
sketch16.addConstraint(Sketcher.Constraint("Equal", 0, 4))
sketch16.addConstraint(Sketcher.Constraint("DistanceX", 2, 1, 2, 2, Q("10 mm")))
sketch16.addConstraint(Sketcher.Constraint("Angle", 3, Q("-59 deg")))
sketch16.addConstraint(Sketcher.Constraint("DistanceY", 1, 1, 1, 2, Q("1.5 mm")))
sketch16.addConstraint(Sketcher.Constraint("DistanceX", -1, 1, 0, 2, Q("30 mm")))
sketch16.addConstraint(Sketcher.Constraint("DistanceY", -1, 1, 0, 2, Q("48 mm")))
groove4 = body.newObject("PartDesign::Groove", "Groove003")
groove4.Profile = sketch16
groove4.ReferenceAxis = (sketch16, ["Axis0"])
groove4.Angle = 360

# Sketch on YZ plane
sketch17 = body.newObject("Sketcher::SketchObject", "Sketch016")
sketch17.AttachmentSupport = (doc.getObject("YZ_Plane"), [""])
sketch17.MapMode = "FlatFace"
sketch17.AttachmentOffset = App.Placement(V(0, 0, 55), App.Rotation())
sketch17.addGeometry(Part.Circle(V(40, 65, 0), V(0, 0, 1), 3), False)
sketch17.addConstraint(Sketcher.Constraint("Diameter", 0, Q("6 mm")))
sketch17.addConstraint(Sketcher.Constraint("DistanceX", -1, 1, 0, 3, Q("40 mm")))
sketch17.addConstraint(Sketcher.Constraint("DistanceY", -1, 1, 0, 3, Q("65 mm")))
pocket5 = body.newObject("PartDesign::Pocket", "Pocket004")
pocket5.Profile = sketch17
pocket5.Type = "ThroughAll"

# Sketch on XZ plane
sketch18 = body.newObject("Sketcher::SketchObject", "Sketch017")
sketch18.AttachmentSupport = (doc.getObject("XZ_Plane"), [""])
sketch18.MapMode = "FlatFace"
sketch18.AttachmentOffset = App.Placement(V(0, 0, -80), App.Rotation())
sketch18.addGeometry(Part.Circle(V(-85, 10, 0), V(0, 0, 1), 2.5), False)
sketch18.addConstraint(Sketcher.Constraint("Diameter", 0, Q("5 mm")))
sketch18.addConstraint(Sketcher.Constraint("DistanceX", 0, 3, -1, 1, Q("85 mm")))
sketch18.addConstraint(Sketcher.Constraint("DistanceY", -1, 1, 0, 3, Q("10 mm")))
pocket6 = body.newObject("PartDesign::Pocket", "Pocket005")
pocket6.Profile = sketch18
pocket6.Length = 4
pocket6.Reversed = True

# Sketch on XZ plane
sketch19 = body.newObject("Sketcher::SketchObject", "Sketch018")
sketch19.AttachmentSupport = (doc.getObject("XZ_Plane"), [""])
sketch19.MapMode = "FlatFace"
sketch19.AttachmentOffset = App.Placement(V(0, 0, -76), App.Rotation())
sketch19.addGeometry(Part.Circle(V(-85, 8.3, 0), V(0, 0, 1), 0.23), False)
sketch19.addConstraint(Sketcher.Constraint("Diameter", 0, Q("0.45 mm")))
sketch19.addConstraint(Sketcher.Constraint("DistanceX", 0, 3, -1, 1, Q("85 mm")))
sketch19.addConstraint(Sketcher.Constraint("DistanceY", -1, 1, 0, 3, Q("8.3 mm")))
pocket7 = body.newObject("PartDesign::Pocket", "Pocket006")
pocket7.Profile = sketch19
pocket7.Type = "ThroughAll"
pocket7.Reversed = True

# Sketch on XZ plane
sketch20 = body.newObject("Sketcher::SketchObject", "Sketch019")
sketch20.AttachmentSupport = (doc.getObject("XZ_Plane"), [""])
sketch20.MapMode = "FlatFace"
sketch20.AttachmentOffset = App.Placement(V(0, 0, -76), App.Rotation())
sketch20.addGeometry(Part.Circle(V(-85, 11.7, 0), V(0, 0, 1), 0.23), False)
sketch20.addConstraint(Sketcher.Constraint("Diameter", 0, Q("0.45 mm")))
sketch20.addConstraint(Sketcher.Constraint("DistanceX", 0, 3, -1, 1, Q("85 mm")))
sketch20.addConstraint(Sketcher.Constraint("DistanceY", -1, 1, 0, 3, Q("11.7 mm")))
pocket8 = body.newObject("PartDesign::Pocket", "Pocket007")
pocket8.Profile = sketch20
pocket8.Type = "ThroughAll"
pocket8.Reversed = True
doc.recompute()

datumplane7 = body.newObject("PartDesign::Plane", "DatumPlane006")
datumplane7.AttachmentSupport = (doc.getObject("YZ_Plane"), [""])
datumplane7.MapMode = "FlatFace"
datumplane7.AttachmentOffset = App.Placement(V(0, 0, 35), App.Rotation())
mirrored7 = body.newObject("PartDesign::Mirrored", "Mirrored006")
mirrored7.Originals = [pocket6, pocket7, pocket8]
mirrored7.MirrorPlane = (datumplane7, [""])
body.Tip = mirrored7
doc.recompute()

fillet = body.newObject("PartDesign::Fillet", "Fillet")
fillet.Base = (mirrored7, edges_at(mirrored7, [
    (-90, 70, -90),
    (-90, 70, 110),
    (160, 70, 110),
    (160, 70, -90),
]))
fillet.Radius = 5
doc.recompute()

fillet2 = body.newObject("PartDesign::Fillet", "Fillet001")
fillet2.Base = (fillet, edges_at(fillet, [
    (15, 45, 85),
    (15, 45, 45),
    (55, 45, 45),
    (55, 45, 85),
]))
fillet2.Radius = 5

doc.recompute()
